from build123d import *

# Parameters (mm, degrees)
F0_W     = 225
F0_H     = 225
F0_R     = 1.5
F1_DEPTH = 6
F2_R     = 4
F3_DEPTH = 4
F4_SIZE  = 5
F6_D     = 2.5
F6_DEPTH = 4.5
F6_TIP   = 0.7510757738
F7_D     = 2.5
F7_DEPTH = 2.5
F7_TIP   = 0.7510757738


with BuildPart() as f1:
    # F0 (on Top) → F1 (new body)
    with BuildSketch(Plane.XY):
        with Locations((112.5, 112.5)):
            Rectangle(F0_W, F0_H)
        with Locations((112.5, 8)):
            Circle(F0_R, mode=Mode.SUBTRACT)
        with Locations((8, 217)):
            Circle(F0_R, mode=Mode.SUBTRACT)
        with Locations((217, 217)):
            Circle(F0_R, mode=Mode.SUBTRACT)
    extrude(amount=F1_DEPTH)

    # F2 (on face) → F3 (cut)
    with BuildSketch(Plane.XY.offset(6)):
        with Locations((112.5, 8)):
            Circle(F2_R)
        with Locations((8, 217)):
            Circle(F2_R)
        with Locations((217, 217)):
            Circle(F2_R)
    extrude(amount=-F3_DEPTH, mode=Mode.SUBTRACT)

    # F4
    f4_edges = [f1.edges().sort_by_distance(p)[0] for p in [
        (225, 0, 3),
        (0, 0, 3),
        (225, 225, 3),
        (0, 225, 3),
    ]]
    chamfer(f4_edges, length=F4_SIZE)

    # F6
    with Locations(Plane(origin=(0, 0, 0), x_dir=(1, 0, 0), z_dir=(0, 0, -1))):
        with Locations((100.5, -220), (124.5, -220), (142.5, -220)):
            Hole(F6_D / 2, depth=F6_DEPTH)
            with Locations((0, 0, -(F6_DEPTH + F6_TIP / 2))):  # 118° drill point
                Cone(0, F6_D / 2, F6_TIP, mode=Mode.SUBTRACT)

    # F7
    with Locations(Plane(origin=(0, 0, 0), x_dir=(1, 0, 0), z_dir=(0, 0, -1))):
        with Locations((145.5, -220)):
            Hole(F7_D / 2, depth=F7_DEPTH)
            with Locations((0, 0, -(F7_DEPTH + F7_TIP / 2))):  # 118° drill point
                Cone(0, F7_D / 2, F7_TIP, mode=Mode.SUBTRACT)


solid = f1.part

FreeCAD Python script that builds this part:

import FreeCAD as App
import Part
import Sketcher


def edges_at(feature, points):
    """Names of the edges that pass closest to the given points."""
    edges = feature.Shape.Edges
    near = lambda p: min(range(len(edges)), key=lambda i: edges[i].distToShape(Part.Vertex(*p))[0])
    return sorted({f"Edge{near(p) + 1}" for p in points})

doc = App.newDocument("Part")
params = doc.addObject("Spreadsheet::Sheet", "Params")
for row, (alias, value) in enumerate([
    ("sketch1_diameter", "3 mm"),
    ("sketch1_width", "225 mm"),
    ("pad1_length", "6 mm"),
    ("sketch2_diameter", "8 mm"),
    ("pocket1_length", "4 mm"),
    ("chamfer_size", "5 mm"),
    ("sketch3_diameter", "2.5 mm"),
    ("hole_diameter", "2.5 mm"),
    ("hole_depth", "4.5 mm"),
    ("sketch4_diameter", "2.5 mm"),
    ("hole2_diameter", "2.5 mm"),
    ("hole2_depth", "2.5 mm"),
], start=1):
    params.set(f"A{row}", alias)
    params.set(f"B{row}", "=" + value)
    params.setAlias(f"B{row}", alias)

body = doc.addObject("PartDesign::Body", "Body")

# Sketch on XY plane
sketch1 = body.newObject("Sketcher::SketchObject", "Sketch")
sketch1.AttachmentSupport = (doc.getObject("XY_Plane"), [""])
sketch1.MapMode = "FlatFace"
sketch1.addGeometry(Part.LineSegment(App.Vector(0, 225, 0), App.Vector(0, 0, 0)), False)
sketch1.addGeometry(Part.LineSegment(App.Vector(0, 0, 0), App.Vector(225, 0, 0)), False)
sketch1.addGeometry(Part.LineSegment(App.Vector(225, 0, 0), App.Vector(225, 225, 0)), False)
sketch1.addGeometry(Part.LineSegment(App.Vector(225, 225, 0), App.Vector(0, 225, 0)), False)
sketch1.addGeometry(Part.Circle(App.Vector(112.5, 8, 0), App.Vector(0, 0, 1), 1.5), False)
sketch1.addGeometry(Part.Circle(App.Vector(8, 217, 0), App.Vector(0, 0, 1), 1.5), False)
sketch1.addGeometry(Part.Circle(App.Vector(217, 217, 0), App.Vector(0, 0, 1), 1.5), False)
sketch1.addConstraint(Sketcher.Constraint("Coincident", 0, 2, 1, 1))
sketch1.addConstraint(Sketcher.Constraint("Coincident", 1, 2, 2, 1))
sketch1.addConstraint(Sketcher.Constraint("Coincident", 2, 2, 3, 1))
sketch1.addConstraint(Sketcher.Constraint("Coincident", 3, 2, 0, 1))
sketch1.addConstraint(Sketcher.Constraint("Vertical", 0))
sketch1.addConstraint(Sketcher.Constraint("Horizontal", 1))
sketch1.addConstraint(Sketcher.Constraint("Vertical", 2))
sketch1.addConstraint(Sketcher.Constraint("Horizontal", 3))
sketch1.addConstraint(Sketcher.Constraint("Coincident", 0, 2, -1, 1))
sketch1.addConstraint(Sketcher.Constraint("Equal", 4, 5))
sketch1.addConstraint(Sketcher.Constraint("Equal", 5, 6))
sketch1.addConstraint(Sketcher.Constraint("Horizontal", 5, 3, 6, 3))
sketch1.addConstraint(Sketcher.Constraint("Equal", 3, 0))
sketch1.addConstraint(Sketcher.Constraint("Diameter", 4, 3.0))
sketch1.addConstraint(Sketcher.Constraint("DistanceX", 1, 1, 1, 2, 225.0))
sketch1.addConstraint(Sketcher.Constraint("DistanceY", -1, 1, 4, 3, 8.0))
sketch1.addConstraint(Sketcher.Constraint("DistanceX", -1, 1, 5, 3, 8.0))
sketch1.addConstraint(Sketcher.Constraint("DistanceY", -1, 1, 5, 3, 217.0))
sketch1.addConstraint(Sketcher.Constraint("DistanceX", -1, 1, 6, 3, 217.0))
sketch1.addConstraint(Sketcher.Constraint("DistanceX", -1, 1, 4, 3, 112.5))
sketch1.setExpression("Constraints[13]", "Params.sketch1_diameter")
sketch1.setExpression("Constraints[14]", "Params.sketch1_width")
pad1 = body.newObject("PartDesign::Pad", "Pad")
pad1.Profile = sketch1
pad1.setExpression("Length", "Params.pad1_length")

# Sketch on XY plane
sketch2 = body.newObject("Sketcher::SketchObject", "Sketch001")
sketch2.AttachmentSupport = (doc.getObject("XY_Plane"), [""])
sketch2.MapMode = "FlatFace"
sketch2.AttachmentOffset = App.Placement(App.Vector(0, 0, 6), App.Rotation())
sketch2.addGeometry(Part.Circle(App.Vector(112.5, 8, 0), App.Vector(0, 0, 1), 4), False)
sketch2.addGeometry(Part.Circle(App.Vector(8, 217, 0), App.Vector(0, 0, 1), 4), False)
sketch2.addGeometry(Part.Circle(App.Vector(217, 217, 0), App.Vector(0, 0, 1), 4), False)
sketch2.addConstraint(Sketcher.Constraint("Equal", 0, 1))
sketch2.addConstraint(Sketcher.Constraint("Equal", 1, 2))
sketch2.addConstraint(Sketcher.Constraint("Horizontal", 1, 3, 2, 3))
sketch2.addConstraint(Sketcher.Constraint("Diameter", 0, 8.0))
sketch2.addConstraint(Sketcher.Constraint("DistanceY", -1, 1, 0, 3, 8.0))
sketch2.addConstraint(Sketcher.Constraint("DistanceX", -1, 1, 1, 3, 8.0))
sketch2.addConstraint(Sketcher.Constraint("DistanceY", -1, 1, 1, 3, 217.0))
sketch2.addConstraint(Sketcher.Constraint("DistanceX", -1, 1, 2, 3, 217.0))
sketch2.addConstraint(Sketcher.Constraint("DistanceX", -1, 1, 0, 3, 112.5))
sketch2.setExpression("Constraints[3]", "Params.sketch2_diameter")
pocket1 = body.newObject("PartDesign::Pocket", "Pocket")
pocket1.Profile = sketch2
pocket1.setExpression("Length", "Params.pocket1_length")
doc.recompute()

chamfer = body.newObject("PartDesign::Chamfer", "Chamfer")
chamfer.Base = (pocket1, edges_at(pocket1, [
    (225, 0, 3),
    (0, 0, 3),
    (225, 225, 3),
    (0, 225, 3),
]))
chamfer.setExpression("Size", "Params.chamfer_size")

# Sketch on XY plane
sketch3 = body.newObject("Sketcher::SketchObject", "Sketch002")
sketch3.AttachmentSupport = (doc.getObject("XY_Plane"), [""])
sketch3.MapMode = "FlatFace"
sketch3.addGeometry(Part.Circle(App.Vector(100.5, 220, 0), App.Vector(0, 0, 1), 1.2), False)
sketch3.addGeometry(Part.Circle(App.Vector(124.5, 220, 0), App.Vector(0, 0, 1), 1.2), False)
sketch3.addGeometry(Part.Circle(App.Vector(142.5, 220, 0), App.Vector(0, 0, 1), 1.2), False)
sketch3.addConstraint(Sketcher.Constraint("Equal", 0, 1))
sketch3.addConstraint(Sketcher.Constraint("Equal", 1, 2))
sketch3.addConstraint(Sketcher.Constraint("Horizontal", 0, 3, 1, 3))
sketch3.addConstraint(Sketcher.Constraint("Horizontal", 1, 3, 2, 3))
sketch3.addConstraint(Sketcher.Constraint("Diameter", 0, 2.5))
sketch3.addConstraint(Sketcher.Constraint("DistanceY", -1, 1, 0, 3, 220.0))
sketch3.addConstraint(Sketcher.Constraint("DistanceX", 0, 3, 1, 3, 24.0))
sketch3.addConstraint(Sketcher.Constraint("DistanceX", 1, 3, 2, 3, 18.0))
sketch3.addConstraint(Sketcher.Constraint("DistanceX", -1, 1, 0, 3, 100.5))
sketch3.setExpression("Constraints[4]", "Params.sketch3_diameter")
doc.recompute()
hole = body.newObject("PartDesign::Hole", "Hole")
hole.Profile = sketch3
hole.ThreadType = "None"
hole.setExpression("Diameter", "Params.hole_diameter")
hole.DepthType = "Dimension"
hole.setExpression("Depth", "Params.hole_depth")
hole.DrillPoint = "Angled"
hole.DrillPointAngle = 118
hole.Reversed = True

# Sketch on XY plane
sketch4 = body.newObject("Sketcher::SketchObject", "Sketch003")
sketch4.AttachmentSupport = (doc.getObject("XY_Plane"), [""])
sketch4.MapMode = "FlatFace"
sketch4.addGeometry(Part.Circle(App.Vector(145.5, 220, 0), App.Vector(0, 0, 1), 1.2), False)
sketch4.addConstraint(Sketcher.Constraint("Diameter", 0, 2.5))
sketch4.addConstraint(Sketcher.Constraint("DistanceY", -1, 1, 0, 3, 220.0))
sketch4.addConstraint(Sketcher.Constraint("DistanceX", -1, 1, 0, 3, 145.5))
sketch4.setExpression("Constraints[0]", "Params.sketch4_diameter")
doc.recompute()
hole2 = body.newObject("PartDesign::Hole", "Hole001")
hole2.Profile = sketch4
hole2.ThreadType = "None"
hole2.setExpression("Diameter", "Params.hole2_diameter")
hole2.DepthType = "Dimension"
hole2.setExpression("Depth", "Params.hole2_depth")
hole2.DrillPoint = "Angled"
hole2.DrillPointAngle = 118
hole2.Reversed = True

doc.recompute()
